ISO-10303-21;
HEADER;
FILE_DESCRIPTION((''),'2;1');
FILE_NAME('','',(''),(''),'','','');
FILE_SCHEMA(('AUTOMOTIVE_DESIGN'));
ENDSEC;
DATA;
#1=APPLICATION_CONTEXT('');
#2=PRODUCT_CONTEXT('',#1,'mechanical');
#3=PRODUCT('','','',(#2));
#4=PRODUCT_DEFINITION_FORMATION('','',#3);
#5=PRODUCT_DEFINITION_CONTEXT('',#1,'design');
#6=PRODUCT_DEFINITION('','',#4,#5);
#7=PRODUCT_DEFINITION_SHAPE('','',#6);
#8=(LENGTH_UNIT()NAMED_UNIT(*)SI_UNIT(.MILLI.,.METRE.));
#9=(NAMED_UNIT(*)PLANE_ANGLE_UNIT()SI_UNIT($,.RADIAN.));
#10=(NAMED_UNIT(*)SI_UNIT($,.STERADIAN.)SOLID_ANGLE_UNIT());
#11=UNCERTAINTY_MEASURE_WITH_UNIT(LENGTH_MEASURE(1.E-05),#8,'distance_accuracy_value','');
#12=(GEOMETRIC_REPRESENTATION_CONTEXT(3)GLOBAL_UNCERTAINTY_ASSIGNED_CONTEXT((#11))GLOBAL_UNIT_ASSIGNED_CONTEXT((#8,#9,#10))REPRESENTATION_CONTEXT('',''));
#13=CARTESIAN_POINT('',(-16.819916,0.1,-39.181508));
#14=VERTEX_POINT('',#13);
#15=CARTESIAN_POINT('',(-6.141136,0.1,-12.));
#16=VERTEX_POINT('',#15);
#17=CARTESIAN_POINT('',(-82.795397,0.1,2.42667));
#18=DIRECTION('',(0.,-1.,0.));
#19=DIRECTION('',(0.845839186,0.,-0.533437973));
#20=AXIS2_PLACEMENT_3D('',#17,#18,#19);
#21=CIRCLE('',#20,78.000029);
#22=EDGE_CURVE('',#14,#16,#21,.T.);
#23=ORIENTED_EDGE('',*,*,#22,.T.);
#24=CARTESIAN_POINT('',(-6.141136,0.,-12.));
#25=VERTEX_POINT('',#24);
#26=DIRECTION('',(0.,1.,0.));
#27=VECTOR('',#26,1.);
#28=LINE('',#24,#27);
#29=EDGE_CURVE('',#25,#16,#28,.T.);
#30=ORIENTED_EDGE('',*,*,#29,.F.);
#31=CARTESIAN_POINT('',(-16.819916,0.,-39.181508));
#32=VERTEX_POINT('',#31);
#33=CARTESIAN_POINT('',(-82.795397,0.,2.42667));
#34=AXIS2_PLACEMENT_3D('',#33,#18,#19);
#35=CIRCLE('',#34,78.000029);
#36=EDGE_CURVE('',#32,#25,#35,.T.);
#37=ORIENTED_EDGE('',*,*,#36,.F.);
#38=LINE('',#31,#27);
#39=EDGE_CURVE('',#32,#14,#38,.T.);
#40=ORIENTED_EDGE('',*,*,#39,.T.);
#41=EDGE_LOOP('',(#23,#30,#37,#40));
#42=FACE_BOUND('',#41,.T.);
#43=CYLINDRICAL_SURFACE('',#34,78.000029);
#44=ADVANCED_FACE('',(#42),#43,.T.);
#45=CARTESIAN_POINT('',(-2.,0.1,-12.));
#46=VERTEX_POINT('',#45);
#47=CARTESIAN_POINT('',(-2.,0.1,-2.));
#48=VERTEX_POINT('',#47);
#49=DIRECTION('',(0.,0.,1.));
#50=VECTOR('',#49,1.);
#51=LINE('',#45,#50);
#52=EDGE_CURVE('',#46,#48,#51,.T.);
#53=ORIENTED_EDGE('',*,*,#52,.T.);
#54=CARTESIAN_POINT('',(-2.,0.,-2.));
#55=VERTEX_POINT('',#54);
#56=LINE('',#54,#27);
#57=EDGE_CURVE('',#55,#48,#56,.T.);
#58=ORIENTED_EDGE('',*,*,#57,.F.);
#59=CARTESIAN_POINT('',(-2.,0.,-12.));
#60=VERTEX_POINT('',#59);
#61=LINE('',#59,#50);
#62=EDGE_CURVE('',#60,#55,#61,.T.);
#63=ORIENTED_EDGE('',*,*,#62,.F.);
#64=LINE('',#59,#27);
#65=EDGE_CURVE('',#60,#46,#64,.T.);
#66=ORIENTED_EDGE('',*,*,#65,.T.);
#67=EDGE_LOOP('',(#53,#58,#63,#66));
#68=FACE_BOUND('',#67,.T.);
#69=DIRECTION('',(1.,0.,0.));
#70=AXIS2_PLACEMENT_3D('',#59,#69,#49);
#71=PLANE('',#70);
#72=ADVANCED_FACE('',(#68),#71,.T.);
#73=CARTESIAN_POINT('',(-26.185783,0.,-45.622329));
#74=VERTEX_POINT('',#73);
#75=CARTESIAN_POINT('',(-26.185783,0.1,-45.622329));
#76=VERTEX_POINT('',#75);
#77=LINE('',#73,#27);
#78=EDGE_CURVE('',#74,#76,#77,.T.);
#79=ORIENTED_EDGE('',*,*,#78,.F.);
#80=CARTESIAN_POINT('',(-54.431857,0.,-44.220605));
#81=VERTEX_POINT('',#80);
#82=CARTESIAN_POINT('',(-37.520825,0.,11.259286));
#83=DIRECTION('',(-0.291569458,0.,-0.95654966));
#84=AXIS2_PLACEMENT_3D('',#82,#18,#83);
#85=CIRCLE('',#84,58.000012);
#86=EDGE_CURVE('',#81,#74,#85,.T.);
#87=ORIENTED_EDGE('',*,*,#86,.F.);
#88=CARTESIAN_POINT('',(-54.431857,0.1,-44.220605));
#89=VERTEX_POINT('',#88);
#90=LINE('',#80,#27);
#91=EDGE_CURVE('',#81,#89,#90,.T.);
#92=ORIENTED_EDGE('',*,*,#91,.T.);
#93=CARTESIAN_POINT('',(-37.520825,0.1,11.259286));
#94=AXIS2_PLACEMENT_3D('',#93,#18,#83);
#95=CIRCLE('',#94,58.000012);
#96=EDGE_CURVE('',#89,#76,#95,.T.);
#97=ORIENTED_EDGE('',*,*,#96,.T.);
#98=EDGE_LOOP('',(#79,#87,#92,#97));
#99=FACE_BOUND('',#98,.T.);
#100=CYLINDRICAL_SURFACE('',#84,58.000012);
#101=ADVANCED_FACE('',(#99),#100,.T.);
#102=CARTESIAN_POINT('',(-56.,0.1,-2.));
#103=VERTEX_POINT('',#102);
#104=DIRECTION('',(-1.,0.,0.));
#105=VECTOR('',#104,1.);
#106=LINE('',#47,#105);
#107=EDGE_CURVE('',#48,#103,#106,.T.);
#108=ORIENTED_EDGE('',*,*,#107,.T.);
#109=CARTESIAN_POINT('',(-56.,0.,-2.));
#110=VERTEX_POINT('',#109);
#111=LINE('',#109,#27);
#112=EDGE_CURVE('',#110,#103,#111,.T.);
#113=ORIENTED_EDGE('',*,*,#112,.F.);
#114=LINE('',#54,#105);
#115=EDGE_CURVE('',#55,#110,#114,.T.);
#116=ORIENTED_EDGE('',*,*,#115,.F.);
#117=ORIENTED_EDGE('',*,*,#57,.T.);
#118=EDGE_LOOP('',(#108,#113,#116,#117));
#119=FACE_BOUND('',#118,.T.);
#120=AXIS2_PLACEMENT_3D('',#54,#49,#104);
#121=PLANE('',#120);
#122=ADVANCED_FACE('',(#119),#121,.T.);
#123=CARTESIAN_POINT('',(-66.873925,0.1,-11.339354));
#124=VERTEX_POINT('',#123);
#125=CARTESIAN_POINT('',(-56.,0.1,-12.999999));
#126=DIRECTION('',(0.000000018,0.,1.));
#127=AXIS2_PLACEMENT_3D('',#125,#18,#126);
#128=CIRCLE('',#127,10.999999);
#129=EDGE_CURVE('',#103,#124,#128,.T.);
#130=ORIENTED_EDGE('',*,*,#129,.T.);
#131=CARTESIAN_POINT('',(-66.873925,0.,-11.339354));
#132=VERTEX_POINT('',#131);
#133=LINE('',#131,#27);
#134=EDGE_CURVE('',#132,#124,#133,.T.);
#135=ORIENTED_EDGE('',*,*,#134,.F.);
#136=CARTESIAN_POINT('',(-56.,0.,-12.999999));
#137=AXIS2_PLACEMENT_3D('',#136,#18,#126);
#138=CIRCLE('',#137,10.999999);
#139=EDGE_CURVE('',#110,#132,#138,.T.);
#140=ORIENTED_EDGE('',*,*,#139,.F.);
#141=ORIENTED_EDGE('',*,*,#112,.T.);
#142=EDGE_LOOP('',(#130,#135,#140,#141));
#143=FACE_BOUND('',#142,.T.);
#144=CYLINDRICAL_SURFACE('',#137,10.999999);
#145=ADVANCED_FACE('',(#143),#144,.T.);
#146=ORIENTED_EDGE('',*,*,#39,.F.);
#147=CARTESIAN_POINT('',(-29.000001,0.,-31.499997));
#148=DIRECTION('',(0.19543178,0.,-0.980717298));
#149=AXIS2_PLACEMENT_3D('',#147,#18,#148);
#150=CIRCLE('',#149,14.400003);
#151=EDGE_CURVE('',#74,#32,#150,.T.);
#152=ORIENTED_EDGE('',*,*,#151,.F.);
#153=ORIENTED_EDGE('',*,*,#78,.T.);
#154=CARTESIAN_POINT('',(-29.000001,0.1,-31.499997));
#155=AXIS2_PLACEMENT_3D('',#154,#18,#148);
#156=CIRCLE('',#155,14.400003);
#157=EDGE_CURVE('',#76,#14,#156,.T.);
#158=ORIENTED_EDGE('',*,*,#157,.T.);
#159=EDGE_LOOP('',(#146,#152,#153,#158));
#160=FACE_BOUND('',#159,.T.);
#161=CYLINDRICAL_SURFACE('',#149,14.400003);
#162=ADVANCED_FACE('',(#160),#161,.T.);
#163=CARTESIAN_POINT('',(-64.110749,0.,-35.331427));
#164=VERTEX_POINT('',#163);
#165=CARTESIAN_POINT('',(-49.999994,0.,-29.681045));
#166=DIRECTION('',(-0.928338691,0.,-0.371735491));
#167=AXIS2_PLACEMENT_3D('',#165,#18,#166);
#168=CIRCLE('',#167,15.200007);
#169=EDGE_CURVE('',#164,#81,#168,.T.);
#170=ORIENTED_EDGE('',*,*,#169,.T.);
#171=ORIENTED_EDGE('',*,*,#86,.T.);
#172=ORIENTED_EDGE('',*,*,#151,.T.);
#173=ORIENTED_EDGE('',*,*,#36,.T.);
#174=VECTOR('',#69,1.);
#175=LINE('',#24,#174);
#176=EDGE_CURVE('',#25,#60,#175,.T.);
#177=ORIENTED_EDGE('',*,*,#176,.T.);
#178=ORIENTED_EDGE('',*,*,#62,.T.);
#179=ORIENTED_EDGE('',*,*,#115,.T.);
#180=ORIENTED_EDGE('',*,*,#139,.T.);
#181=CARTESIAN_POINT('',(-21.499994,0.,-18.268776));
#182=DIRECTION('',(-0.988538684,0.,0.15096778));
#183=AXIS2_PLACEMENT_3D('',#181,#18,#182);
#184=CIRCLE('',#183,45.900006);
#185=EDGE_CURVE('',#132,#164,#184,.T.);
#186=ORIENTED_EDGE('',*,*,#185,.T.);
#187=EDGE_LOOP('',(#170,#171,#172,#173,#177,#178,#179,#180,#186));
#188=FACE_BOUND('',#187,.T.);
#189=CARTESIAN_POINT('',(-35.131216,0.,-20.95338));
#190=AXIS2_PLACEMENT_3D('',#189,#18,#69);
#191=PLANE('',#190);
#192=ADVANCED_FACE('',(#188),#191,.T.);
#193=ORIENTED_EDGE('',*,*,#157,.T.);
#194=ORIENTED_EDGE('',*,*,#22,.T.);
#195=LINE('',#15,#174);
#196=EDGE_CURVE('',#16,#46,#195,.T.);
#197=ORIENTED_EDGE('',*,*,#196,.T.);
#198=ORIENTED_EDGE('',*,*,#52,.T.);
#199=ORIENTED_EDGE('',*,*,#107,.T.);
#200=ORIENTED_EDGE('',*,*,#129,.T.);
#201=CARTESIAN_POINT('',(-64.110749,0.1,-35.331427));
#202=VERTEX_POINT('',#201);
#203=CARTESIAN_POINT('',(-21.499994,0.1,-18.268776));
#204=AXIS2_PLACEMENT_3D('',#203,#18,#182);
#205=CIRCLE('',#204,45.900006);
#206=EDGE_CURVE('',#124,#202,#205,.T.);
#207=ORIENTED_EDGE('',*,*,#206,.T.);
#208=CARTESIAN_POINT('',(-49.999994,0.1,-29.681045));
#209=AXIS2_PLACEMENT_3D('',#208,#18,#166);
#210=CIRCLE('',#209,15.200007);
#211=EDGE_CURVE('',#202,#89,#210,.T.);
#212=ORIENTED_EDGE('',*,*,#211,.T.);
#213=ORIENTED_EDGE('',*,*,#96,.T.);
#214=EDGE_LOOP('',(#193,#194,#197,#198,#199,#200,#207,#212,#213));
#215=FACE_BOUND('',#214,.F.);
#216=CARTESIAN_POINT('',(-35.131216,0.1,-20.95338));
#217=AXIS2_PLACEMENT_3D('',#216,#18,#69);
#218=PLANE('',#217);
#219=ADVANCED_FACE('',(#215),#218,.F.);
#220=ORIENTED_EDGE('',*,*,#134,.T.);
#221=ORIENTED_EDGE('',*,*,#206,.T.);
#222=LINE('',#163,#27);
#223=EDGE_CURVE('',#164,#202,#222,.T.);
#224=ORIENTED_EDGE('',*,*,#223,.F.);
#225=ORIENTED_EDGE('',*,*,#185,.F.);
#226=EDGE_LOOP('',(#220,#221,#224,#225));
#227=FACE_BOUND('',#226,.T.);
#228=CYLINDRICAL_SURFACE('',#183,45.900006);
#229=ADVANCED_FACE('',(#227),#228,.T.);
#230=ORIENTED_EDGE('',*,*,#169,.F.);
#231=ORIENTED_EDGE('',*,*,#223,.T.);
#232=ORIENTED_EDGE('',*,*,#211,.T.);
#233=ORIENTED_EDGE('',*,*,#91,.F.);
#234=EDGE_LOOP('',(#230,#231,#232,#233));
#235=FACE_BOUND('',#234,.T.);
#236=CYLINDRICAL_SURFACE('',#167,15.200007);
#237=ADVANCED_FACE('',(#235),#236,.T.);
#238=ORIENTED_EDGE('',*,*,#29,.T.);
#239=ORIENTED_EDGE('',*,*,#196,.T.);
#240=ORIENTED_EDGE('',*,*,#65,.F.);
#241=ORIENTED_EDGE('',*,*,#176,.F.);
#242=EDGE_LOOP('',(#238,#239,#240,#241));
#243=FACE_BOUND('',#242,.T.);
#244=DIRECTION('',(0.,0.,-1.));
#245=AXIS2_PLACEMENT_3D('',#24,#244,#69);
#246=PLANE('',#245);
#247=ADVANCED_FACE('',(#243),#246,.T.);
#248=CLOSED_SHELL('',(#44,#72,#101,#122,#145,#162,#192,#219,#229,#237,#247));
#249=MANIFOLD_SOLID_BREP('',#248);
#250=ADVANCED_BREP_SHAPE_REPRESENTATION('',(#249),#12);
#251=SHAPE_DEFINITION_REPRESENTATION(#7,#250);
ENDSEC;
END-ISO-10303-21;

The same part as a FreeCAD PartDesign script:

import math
import FreeCAD as App
import Part
import Sketcher

doc = App.newDocument("Part")
params = doc.addObject("Spreadsheet::Sheet", "Params")
for row, (alias, value) in enumerate([
    ("sketch1_radius", "10.999999 mm"),
    ("sketch1_width", "54 mm"),
    ("sketch1_height", "10 mm"),
    ("pad1_length", "0.1 mm"),
], start=1):
    params.set(f"A{row}", alias)
    params.set(f"B{row}", "=" + value)
    params.setAlias(f"B{row}", alias)

body = doc.addObject("PartDesign::Body", "Body")

sketch1 = body.newObject("Sketcher::SketchObject", "Sketch")
sketch1.AttachmentSupport = (doc.getObject("XZ_Plane"), [""])
sketch1.MapMode = "FlatFace"
sketch1.addGeometry([
    Part.ArcOfCircle(Part.Circle(App.Vector(-56, -13, 0), App.Vector(0, 0, 1), 11), math.radians(90), math.radians(171)),
    Part.ArcOfCircle(Part.Circle(App.Vector(-21.5, -18.3, 0), App.Vector(0, 0, 1), 45.9), math.radians(171), math.radians(202)),
    Part.ArcOfCircle(Part.Circle(App.Vector(-50, -29.7, 0), App.Vector(0, 0, 1), 15.2), math.radians(-158), math.radians(-107)),
    Part.ArcOfCircle(Part.Circle(App.Vector(-37.5, 11.3, 0), App.Vector(0, 0, 1), 58), math.radians(-107), math.radians(-79)),
    Part.ArcOfCircle(Part.Circle(App.Vector(-29, -31.5, 0), App.Vector(0, 0, 1), 14.4), math.radians(-79), math.radians(-32)),
    Part.ArcOfCircle(Part.Circle(App.Vector(-82.8, 2.4, 0), App.Vector(0, 0, 1), 78), math.radians(-32), math.radians(-11)),
    Part.LineSegment(App.Vector(-6.1, -12, 0), App.Vector(-2, -12, 0)),
    Part.LineSegment(App.Vector(-2, -12, 0), App.Vector(-2, -2, 0)),
    Part.LineSegment(App.Vector(-2, -2, 0), App.Vector(-56, -2, 0)),
], False)
sketch1.addConstraint([
    Sketcher.Constraint("Tangent", 0, 2, 1, 1),
    Sketcher.Constraint("Tangent", 1, 2, 2, 1),
    Sketcher.Constraint("Tangent", 2, 2, 3, 1),
    Sketcher.Constraint("Tangent", 3, 2, 4, 1),
    Sketcher.Constraint("Tangent", 4, 2, 5, 1),
    Sketcher.Constraint("Coincident", 5, 2, 6, 1),
    Sketcher.Constraint("Coincident", 6, 2, 7, 1),
    Sketcher.Constraint("Coincident", 7, 2, 8, 1),
    Sketcher.Constraint("Tangent", 8, 2, 0, 1),
    Sketcher.Constraint("Horizontal", 6),
    Sketcher.Constraint("Vertical", 7),
    Sketcher.Constraint("Horizontal", 8),
    Sketcher.Constraint("Radius", 0, 10.999999),
    Sketcher.Constraint("DistanceX", 8, 2, 8, 1, 54.0),
    Sketcher.Constraint("DistanceY", 7, 1, 7, 2, 10.0),
    Sketcher.Constraint("DistanceX", 0, 3, -1, 1, 56.0),
    Sketcher.Constraint("DistanceY", 0, 3, -1, 1, 12.999999),
    Sketcher.Constraint("DistanceX", 4, 3, -1, 1, 29.000001),
    Sketcher.Constraint("DistanceX", 2, 3, 1, 3, 28.5),
    Sketcher.Constraint("Radius", 3, 58.000012),
    Sketcher.Constraint("Radius", 5, 78.000029),
    Sketcher.Constraint("Radius", 1, 45.900006),
    Sketcher.Constraint("Radius", 2, 15.200007),
    Sketcher.Constraint("Radius", 4, 14.400003),
    Sketcher.Constraint("DistanceX", 0, 2, 3, 3, 29.3531),
    Sketcher.Constraint("DistanceX", 6, 1, 6, 2, 4.141136),
    Sketcher.Constraint("DistanceY", -1, 1, 5, 3, 2.42667),
])
sketch1.setExpression("Constraints[12]", "Params.sketch1_radius")
sketch1.setExpression("Constraints[13]", "Params.sketch1_width")
sketch1.setExpression("Constraints[14]", "Params.sketch1_height")
pad1 = body.newObject("PartDesign::Pad", "Pad")
pad1.Profile = sketch1
pad1.setExpression("Length", "Params.pad1_length")
pad1.Reversed = True

doc.recompute()
